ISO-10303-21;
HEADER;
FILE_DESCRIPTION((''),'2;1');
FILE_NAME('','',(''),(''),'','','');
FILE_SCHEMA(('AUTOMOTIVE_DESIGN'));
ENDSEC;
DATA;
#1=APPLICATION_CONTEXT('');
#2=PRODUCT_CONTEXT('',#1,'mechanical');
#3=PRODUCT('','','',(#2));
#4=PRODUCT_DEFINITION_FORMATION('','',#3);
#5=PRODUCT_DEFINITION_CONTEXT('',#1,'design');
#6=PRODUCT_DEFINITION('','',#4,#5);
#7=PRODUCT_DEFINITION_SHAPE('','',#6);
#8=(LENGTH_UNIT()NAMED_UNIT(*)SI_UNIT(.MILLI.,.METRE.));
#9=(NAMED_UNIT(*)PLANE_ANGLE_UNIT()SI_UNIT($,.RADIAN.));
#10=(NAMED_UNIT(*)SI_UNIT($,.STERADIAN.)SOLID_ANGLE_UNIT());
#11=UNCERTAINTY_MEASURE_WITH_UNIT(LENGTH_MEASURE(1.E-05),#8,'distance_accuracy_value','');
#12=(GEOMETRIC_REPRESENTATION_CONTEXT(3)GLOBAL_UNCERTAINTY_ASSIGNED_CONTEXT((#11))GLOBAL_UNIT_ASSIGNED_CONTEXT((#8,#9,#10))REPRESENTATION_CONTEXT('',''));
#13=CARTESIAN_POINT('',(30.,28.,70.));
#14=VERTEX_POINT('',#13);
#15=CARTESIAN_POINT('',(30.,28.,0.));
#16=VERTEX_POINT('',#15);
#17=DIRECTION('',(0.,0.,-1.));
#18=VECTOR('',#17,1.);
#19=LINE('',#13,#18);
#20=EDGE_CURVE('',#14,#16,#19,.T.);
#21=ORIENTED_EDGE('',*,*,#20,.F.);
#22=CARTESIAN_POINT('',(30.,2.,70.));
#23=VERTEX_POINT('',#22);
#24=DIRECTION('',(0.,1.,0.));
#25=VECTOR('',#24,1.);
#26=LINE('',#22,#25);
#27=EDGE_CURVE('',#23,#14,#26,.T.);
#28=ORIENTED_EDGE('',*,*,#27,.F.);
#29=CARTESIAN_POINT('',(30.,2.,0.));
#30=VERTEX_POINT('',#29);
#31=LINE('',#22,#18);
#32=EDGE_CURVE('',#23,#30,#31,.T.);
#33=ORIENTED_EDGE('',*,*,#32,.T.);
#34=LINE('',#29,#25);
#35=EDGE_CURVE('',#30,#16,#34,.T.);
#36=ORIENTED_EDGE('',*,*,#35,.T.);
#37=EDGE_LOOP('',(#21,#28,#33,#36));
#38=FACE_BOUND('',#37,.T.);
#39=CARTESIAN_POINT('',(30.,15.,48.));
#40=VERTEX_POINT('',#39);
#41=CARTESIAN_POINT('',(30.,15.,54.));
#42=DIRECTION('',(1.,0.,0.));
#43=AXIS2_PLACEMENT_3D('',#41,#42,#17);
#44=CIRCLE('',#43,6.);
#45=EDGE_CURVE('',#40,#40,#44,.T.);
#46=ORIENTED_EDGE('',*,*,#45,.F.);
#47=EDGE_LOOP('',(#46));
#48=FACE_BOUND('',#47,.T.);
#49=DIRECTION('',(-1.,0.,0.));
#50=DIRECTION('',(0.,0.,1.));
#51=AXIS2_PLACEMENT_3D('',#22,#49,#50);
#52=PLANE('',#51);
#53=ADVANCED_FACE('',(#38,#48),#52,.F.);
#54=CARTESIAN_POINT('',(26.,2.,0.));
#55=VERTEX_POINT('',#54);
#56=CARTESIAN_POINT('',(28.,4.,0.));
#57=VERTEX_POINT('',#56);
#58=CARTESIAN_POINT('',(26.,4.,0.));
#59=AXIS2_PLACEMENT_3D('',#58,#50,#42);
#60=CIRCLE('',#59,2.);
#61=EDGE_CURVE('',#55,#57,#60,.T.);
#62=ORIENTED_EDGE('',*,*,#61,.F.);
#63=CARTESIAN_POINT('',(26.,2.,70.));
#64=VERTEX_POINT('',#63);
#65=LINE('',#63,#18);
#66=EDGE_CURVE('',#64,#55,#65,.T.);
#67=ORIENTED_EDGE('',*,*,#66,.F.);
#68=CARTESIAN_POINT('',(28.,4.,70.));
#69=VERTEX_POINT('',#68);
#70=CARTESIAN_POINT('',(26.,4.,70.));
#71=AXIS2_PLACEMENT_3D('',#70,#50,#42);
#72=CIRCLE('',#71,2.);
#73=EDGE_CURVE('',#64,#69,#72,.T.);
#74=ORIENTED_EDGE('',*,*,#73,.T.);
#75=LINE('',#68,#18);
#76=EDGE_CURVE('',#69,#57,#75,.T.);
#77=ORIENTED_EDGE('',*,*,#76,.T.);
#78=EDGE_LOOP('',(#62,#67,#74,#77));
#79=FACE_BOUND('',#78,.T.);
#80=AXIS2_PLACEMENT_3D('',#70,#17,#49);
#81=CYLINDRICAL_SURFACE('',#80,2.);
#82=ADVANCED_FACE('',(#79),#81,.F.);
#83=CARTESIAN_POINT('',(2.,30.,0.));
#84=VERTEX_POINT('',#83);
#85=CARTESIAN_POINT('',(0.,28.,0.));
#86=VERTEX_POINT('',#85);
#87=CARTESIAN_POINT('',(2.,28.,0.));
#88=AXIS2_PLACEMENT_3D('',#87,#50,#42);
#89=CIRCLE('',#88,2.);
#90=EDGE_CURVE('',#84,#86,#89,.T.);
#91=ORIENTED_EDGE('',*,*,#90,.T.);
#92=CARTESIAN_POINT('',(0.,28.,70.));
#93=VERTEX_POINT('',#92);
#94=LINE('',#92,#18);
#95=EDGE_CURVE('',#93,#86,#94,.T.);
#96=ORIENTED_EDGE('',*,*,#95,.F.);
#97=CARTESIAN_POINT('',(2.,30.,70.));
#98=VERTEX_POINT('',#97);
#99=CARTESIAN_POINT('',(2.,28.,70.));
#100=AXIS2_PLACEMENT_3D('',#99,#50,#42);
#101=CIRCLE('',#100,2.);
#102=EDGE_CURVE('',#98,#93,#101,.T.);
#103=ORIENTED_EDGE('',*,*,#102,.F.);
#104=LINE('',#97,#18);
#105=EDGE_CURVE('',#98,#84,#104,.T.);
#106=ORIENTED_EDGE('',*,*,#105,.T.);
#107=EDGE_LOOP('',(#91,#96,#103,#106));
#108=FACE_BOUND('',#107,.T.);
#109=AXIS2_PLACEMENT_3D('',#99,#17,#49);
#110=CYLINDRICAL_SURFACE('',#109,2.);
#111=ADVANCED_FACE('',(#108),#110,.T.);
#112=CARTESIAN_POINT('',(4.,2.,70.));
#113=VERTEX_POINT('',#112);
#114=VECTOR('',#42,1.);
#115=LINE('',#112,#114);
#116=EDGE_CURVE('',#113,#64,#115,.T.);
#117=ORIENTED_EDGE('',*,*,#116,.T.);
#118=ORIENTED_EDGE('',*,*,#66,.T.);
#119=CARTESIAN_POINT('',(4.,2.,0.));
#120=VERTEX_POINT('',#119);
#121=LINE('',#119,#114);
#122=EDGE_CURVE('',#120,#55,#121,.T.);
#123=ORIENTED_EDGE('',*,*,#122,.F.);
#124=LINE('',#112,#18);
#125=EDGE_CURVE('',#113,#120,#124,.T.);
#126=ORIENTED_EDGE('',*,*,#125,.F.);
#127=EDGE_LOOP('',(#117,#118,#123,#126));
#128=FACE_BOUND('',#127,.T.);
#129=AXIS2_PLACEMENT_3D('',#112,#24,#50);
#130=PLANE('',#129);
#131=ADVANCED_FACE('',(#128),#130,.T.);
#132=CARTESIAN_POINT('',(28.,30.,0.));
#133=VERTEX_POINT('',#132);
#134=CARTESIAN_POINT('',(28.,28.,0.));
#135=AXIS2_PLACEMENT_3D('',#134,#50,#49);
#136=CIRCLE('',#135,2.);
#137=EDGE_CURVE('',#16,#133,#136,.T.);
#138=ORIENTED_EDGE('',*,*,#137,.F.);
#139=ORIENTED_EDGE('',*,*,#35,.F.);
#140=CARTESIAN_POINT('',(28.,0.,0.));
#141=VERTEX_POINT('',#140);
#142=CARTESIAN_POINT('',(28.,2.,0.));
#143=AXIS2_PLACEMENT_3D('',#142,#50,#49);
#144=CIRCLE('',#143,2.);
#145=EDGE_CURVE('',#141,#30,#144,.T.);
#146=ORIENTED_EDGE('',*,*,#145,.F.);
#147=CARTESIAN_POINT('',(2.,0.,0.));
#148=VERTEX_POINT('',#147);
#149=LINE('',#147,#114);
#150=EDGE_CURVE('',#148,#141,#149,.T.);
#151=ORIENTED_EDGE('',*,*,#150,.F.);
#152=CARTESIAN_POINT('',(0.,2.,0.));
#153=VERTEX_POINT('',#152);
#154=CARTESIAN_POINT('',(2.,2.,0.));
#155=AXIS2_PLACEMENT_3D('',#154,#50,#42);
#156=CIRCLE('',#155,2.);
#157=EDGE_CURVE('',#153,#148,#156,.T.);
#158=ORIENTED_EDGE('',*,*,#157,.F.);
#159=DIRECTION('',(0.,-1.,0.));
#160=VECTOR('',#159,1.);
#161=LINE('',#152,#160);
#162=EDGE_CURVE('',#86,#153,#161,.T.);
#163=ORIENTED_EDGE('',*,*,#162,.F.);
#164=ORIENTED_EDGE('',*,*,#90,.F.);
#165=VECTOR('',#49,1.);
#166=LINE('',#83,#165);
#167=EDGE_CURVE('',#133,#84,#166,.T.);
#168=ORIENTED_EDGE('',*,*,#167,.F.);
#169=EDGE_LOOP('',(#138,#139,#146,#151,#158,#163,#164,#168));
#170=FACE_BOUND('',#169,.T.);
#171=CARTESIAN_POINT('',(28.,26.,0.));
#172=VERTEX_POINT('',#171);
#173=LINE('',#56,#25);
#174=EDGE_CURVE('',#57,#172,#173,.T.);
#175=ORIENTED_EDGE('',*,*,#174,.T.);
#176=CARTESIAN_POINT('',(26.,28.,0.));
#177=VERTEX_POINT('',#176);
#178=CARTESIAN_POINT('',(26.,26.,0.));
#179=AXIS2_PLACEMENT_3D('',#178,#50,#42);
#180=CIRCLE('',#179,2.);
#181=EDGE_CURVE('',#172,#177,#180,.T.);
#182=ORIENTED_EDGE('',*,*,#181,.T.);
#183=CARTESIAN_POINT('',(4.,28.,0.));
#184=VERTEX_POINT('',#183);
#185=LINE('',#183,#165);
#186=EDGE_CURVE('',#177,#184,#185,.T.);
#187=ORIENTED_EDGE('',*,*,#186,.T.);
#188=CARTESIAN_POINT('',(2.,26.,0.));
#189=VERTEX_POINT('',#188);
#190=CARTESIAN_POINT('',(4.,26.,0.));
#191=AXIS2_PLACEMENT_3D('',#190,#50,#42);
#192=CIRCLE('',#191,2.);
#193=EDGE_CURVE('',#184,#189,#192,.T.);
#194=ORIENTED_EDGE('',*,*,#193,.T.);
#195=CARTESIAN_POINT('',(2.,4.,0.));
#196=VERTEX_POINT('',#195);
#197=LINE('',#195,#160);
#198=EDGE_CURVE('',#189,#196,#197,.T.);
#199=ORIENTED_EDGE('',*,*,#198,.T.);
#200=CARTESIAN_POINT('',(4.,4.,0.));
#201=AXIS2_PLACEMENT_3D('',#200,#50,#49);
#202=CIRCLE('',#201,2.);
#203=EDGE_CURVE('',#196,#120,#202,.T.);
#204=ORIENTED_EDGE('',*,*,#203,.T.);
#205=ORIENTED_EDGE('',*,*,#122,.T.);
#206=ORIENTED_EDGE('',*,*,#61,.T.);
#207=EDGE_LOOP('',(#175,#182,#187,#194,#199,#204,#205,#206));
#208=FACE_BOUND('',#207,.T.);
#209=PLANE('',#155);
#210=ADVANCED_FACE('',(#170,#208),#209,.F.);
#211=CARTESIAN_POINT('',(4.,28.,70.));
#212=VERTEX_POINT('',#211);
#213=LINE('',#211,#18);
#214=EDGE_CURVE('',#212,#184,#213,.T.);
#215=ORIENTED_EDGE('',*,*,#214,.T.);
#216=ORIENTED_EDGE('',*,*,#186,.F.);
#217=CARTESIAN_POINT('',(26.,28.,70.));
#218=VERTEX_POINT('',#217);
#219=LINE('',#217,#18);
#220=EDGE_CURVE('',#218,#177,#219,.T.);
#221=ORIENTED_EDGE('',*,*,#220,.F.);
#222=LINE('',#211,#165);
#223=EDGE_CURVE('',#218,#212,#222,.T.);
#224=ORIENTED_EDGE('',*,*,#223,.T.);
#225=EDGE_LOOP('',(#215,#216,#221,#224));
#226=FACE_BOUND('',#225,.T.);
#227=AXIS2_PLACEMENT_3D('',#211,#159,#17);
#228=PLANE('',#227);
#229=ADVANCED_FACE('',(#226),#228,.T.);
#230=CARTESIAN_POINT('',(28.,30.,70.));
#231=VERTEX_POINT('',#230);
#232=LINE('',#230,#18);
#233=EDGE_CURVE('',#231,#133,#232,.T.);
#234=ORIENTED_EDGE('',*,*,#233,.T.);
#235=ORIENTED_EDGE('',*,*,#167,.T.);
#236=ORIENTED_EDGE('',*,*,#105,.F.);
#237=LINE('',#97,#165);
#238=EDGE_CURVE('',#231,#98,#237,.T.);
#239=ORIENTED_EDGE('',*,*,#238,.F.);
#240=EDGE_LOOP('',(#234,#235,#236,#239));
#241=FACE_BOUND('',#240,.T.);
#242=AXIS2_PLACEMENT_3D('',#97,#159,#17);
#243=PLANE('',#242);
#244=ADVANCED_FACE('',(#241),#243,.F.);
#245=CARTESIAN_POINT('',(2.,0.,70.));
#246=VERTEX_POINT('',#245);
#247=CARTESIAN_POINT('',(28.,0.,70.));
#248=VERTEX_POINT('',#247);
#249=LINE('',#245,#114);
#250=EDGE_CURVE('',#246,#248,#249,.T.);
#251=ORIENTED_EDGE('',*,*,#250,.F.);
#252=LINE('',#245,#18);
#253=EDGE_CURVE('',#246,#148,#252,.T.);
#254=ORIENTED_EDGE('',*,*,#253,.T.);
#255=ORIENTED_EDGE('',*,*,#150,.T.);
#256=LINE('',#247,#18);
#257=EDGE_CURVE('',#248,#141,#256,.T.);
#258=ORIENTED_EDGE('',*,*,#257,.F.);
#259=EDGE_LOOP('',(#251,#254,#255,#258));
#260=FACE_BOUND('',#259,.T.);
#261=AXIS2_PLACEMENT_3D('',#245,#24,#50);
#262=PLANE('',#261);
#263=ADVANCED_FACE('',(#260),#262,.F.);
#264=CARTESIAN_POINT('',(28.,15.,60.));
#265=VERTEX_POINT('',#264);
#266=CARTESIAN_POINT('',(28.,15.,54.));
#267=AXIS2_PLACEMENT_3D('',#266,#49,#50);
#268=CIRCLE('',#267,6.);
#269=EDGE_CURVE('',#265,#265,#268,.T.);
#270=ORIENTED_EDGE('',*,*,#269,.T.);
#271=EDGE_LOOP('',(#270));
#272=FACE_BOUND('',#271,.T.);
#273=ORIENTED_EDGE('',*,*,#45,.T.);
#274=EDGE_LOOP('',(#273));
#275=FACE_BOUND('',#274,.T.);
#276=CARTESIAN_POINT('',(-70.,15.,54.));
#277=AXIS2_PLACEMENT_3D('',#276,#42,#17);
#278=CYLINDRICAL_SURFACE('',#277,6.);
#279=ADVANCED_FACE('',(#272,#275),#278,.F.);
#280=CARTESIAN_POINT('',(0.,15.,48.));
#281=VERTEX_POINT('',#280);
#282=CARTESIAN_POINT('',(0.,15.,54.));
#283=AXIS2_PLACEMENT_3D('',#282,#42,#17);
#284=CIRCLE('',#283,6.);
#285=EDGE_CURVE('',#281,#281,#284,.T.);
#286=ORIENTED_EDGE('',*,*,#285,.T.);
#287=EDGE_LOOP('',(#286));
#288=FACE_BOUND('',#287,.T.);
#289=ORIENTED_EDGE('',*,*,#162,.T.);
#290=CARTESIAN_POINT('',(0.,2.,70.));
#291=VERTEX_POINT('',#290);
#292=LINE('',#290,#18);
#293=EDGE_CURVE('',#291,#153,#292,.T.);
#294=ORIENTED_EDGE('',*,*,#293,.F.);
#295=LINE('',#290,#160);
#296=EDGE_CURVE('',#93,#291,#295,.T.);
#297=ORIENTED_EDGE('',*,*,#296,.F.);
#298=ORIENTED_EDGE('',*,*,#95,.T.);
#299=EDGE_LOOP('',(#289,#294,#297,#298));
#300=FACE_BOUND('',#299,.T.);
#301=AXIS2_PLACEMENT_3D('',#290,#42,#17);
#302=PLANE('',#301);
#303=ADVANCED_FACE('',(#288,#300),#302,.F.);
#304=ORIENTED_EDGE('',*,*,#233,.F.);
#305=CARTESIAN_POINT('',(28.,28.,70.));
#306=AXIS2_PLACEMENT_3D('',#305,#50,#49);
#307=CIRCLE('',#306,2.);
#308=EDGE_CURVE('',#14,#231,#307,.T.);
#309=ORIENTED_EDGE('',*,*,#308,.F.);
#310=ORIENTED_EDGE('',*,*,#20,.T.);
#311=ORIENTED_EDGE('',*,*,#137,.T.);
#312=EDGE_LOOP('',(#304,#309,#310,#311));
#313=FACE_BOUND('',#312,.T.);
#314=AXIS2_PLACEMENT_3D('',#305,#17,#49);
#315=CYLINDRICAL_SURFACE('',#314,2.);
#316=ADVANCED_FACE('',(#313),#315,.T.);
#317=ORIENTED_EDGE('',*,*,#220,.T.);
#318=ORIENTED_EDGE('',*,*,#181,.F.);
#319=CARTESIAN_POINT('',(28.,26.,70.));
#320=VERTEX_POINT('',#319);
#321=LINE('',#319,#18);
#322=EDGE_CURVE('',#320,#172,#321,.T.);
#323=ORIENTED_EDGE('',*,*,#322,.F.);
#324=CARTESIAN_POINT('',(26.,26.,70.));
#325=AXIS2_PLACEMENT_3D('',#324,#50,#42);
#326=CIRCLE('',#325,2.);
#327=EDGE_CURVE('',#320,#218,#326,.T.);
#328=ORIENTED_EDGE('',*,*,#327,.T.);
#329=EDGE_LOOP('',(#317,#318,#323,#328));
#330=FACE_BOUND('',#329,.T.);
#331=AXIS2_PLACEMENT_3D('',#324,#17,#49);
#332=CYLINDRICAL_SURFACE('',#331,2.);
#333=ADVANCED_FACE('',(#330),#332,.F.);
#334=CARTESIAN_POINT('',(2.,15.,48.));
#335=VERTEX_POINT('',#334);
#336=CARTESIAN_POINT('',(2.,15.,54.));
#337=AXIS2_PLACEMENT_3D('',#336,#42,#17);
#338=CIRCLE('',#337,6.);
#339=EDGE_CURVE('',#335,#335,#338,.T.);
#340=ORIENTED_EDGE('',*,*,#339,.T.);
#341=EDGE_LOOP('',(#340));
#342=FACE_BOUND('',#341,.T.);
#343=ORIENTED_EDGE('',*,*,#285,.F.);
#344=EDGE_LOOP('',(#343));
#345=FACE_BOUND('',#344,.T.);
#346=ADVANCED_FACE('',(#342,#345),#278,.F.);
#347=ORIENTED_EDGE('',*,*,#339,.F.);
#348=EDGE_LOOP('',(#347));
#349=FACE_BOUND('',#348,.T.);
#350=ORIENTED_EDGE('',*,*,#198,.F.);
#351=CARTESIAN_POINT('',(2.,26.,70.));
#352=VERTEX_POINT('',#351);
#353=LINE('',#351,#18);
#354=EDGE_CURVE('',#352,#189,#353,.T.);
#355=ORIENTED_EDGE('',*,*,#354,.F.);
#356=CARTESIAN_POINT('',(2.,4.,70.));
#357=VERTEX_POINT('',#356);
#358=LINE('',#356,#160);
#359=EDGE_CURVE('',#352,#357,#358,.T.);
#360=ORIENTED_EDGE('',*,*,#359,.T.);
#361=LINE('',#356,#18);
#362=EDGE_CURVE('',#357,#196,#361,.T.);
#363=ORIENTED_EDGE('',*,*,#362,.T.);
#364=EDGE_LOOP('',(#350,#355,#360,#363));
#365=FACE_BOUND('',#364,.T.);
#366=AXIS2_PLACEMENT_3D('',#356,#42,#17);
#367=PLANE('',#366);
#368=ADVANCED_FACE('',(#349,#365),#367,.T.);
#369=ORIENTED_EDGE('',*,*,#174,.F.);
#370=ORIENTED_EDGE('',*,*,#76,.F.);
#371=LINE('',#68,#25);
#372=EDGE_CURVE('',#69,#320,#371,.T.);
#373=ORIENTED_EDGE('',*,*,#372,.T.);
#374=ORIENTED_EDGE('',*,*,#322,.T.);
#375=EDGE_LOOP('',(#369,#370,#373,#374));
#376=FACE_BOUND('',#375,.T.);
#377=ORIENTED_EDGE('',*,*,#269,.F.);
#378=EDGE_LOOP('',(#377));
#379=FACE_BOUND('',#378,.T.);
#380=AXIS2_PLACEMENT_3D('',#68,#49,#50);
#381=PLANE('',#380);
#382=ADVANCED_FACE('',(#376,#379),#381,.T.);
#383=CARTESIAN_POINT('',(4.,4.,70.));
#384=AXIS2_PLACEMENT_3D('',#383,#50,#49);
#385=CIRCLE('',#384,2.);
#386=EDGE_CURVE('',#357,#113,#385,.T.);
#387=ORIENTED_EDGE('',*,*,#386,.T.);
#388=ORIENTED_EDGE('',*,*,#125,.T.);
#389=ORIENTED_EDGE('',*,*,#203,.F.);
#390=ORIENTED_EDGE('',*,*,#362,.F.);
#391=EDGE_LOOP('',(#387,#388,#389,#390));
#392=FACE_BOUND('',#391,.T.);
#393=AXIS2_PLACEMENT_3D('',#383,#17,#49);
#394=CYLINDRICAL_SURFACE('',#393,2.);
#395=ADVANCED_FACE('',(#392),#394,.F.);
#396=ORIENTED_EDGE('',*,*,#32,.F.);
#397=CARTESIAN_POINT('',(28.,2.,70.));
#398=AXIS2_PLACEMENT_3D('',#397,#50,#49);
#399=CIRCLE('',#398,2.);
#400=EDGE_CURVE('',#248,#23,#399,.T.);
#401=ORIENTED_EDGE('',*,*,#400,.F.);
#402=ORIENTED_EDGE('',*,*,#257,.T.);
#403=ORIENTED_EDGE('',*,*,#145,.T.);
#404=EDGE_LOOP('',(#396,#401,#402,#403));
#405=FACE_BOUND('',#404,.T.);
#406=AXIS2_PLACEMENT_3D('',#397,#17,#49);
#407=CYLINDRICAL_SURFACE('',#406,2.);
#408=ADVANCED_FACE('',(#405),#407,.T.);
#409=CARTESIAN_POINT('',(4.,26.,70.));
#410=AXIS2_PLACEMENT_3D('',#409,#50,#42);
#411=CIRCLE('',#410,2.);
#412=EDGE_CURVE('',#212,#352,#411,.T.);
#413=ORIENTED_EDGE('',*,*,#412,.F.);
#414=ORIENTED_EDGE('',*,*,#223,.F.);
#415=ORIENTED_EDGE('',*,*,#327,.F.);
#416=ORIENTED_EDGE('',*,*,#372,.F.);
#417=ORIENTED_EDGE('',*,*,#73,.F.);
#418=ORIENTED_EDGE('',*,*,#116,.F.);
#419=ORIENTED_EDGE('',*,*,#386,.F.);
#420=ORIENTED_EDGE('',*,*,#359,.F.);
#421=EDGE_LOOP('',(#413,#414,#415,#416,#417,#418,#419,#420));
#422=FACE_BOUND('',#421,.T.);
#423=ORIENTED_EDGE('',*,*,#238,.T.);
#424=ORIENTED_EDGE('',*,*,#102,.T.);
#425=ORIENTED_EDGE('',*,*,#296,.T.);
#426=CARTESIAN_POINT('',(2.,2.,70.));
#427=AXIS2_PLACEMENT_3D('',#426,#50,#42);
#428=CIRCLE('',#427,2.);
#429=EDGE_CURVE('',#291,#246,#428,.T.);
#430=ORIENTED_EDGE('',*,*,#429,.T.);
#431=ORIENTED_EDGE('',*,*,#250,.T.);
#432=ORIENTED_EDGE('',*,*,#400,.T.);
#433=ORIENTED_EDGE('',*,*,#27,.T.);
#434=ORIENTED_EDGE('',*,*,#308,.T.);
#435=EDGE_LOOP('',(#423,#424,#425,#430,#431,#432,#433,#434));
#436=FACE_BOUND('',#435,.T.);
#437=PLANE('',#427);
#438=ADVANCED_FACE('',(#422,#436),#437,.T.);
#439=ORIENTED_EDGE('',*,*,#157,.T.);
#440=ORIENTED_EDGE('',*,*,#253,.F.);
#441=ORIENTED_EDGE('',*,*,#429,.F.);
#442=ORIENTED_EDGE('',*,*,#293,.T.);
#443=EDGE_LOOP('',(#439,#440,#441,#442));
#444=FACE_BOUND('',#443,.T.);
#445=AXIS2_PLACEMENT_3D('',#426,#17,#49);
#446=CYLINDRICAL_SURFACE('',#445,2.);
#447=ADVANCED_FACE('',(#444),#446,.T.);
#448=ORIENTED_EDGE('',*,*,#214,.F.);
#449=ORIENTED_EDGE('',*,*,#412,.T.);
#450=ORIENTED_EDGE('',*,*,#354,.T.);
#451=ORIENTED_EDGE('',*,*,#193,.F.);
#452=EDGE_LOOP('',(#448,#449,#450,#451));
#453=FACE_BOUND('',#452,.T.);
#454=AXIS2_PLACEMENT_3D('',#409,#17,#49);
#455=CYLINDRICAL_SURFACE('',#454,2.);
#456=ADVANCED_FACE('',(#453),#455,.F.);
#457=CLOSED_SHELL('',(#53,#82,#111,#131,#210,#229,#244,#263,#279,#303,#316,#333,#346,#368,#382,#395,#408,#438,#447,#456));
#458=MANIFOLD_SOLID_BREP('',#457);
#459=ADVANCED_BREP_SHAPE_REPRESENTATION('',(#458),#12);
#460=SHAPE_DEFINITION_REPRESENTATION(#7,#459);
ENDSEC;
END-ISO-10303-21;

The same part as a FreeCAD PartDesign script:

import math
import FreeCAD as App
import Part
import Sketcher
from FreeCAD import Vector
Q = App.Units.Quantity

doc = App.newDocument("Part")
body = doc.addObject("PartDesign::Body", "Body")

# Sketch on XY plane
sketch1 = body.newObject("Sketcher::SketchObject", "Sketch")
sketch1.AttachmentSupport = (doc.getObject("XY_Plane"), [""])
sketch1.MapMode = "FlatFace"
sketch1.addGeometry([
    Part.LineSegment(Vector(2, 0, 0), Vector(28, 0, 0)),  # 0
    Part.ArcOfCircle(Part.Circle(Vector(28, 2, 0), Vector(0, 0, 1), 2), math.radians(-90), math.radians(0)),  # 1
    Part.LineSegment(Vector(30, 2, 0), Vector(30, 28, 0)),  # 2
    Part.ArcOfCircle(Part.Circle(Vector(28, 28, 0), Vector(0, 0, 1), 2), math.radians(0), math.radians(90)),  # 3
    Part.LineSegment(Vector(28, 30, 0), Vector(2, 30, 0)),  # 4
    Part.ArcOfCircle(Part.Circle(Vector(2, 28, 0), Vector(0, 0, 1), 2), math.radians(90), math.radians(180)),  # 5
    Part.LineSegment(Vector(0, 28, 0), Vector(0, 2, 0)),  # 6
    Part.ArcOfCircle(Part.Circle(Vector(2, 2, 0), Vector(0, 0, 1), 2), math.radians(-180), math.radians(-90)),  # 7
    Part.ArcOfCircle(Part.Circle(Vector(4, 26, 0), Vector(0, 0, 1), 2), math.radians(90), math.radians(180)),  # 8
    Part.LineSegment(Vector(4, 28, 0), Vector(26, 28, 0)),  # 9
    Part.ArcOfCircle(Part.Circle(Vector(26, 26, 0), Vector(0, 0, 1), 2), math.radians(0), math.radians(90)),  # 10
    Part.LineSegment(Vector(28, 26, 0), Vector(28, 4, 0)),  # 11
    Part.ArcOfCircle(Part.Circle(Vector(26, 4, 0), Vector(0, 0, 1), 2), math.radians(-90), math.radians(0)),  # 12
    Part.LineSegment(Vector(26, 2, 0), Vector(4, 2, 0)),  # 13
    Part.ArcOfCircle(Part.Circle(Vector(4, 4, 0), Vector(0, 0, 1), 2), math.radians(-180), math.radians(-90)),  # 14
    Part.LineSegment(Vector(2, 4, 0), Vector(2, 26, 0)),  # 15
], False)
sketch1.addConstraint([
    Sketcher.Constraint("Tangent", 0, 2, 1, 1),
    Sketcher.Constraint("Tangent", 1, 2, 2, 1),
    Sketcher.Constraint("Tangent", 2, 2, 3, 1),
    Sketcher.Constraint("Tangent", 3, 2, 4, 1),
    Sketcher.Constraint("Tangent", 4, 2, 5, 1),
    Sketcher.Constraint("Tangent", 5, 2, 6, 1),
    Sketcher.Constraint("Tangent", 6, 2, 7, 1),
    Sketcher.Constraint("Tangent", 7, 2, 0, 1),
    Sketcher.Constraint("Tangent", 8, 1, 9, 1),
    Sketcher.Constraint("Tangent", 9, 2, 10, 2),
    Sketcher.Constraint("Tangent", 10, 1, 11, 1),
    Sketcher.Constraint("Tangent", 11, 2, 12, 2),
    Sketcher.Constraint("Tangent", 12, 1, 13, 1),
    Sketcher.Constraint("Tangent", 13, 2, 14, 2),
    Sketcher.Constraint("Tangent", 14, 1, 15, 1),
    Sketcher.Constraint("Tangent", 15, 2, 8, 2),
    Sketcher.Constraint("Horizontal", 0),
    Sketcher.Constraint("Vertical", 2),
    Sketcher.Constraint("Horizontal", 4),
    Sketcher.Constraint("Vertical", 6),
    Sketcher.Constraint("Horizontal", 9),
    Sketcher.Constraint("Vertical", 11),
    Sketcher.Constraint("Horizontal", 13),
    Sketcher.Constraint("Vertical", 15),
    Sketcher.Constraint("Equal", 1, 3),
    Sketcher.Constraint("Equal", 3, 5),
    Sketcher.Constraint("Equal", 5, 7),
    Sketcher.Constraint("Equal", 7, 8),
    Sketcher.Constraint("Equal", 8, 10),
    Sketcher.Constraint("Equal", 10, 12),
    Sketcher.Constraint("Equal", 12, 14),
    Sketcher.Constraint("PointOnObject", 0, 2, -1),
    Sketcher.Constraint("PointOnObject", 5, 2, -2),
    Sketcher.Constraint("Horizontal", 5, 2, 8, 1),
    Sketcher.Constraint("Horizontal", 6, 2, 12, 1),
    Sketcher.Constraint("Vertical", 3, 2, 10, 1),
    Sketcher.Constraint("Vertical", 7, 2, 14, 1),
    Sketcher.Constraint("Equal", 4, 2),
    Sketcher.Constraint("Radius", 1, Q("2 mm")),
    Sketcher.Constraint("DistanceX", 0, 1, 0, 2, Q("26 mm")),
])
pad1 = body.newObject("PartDesign::Pad", "Pad")
pad1.Profile = sketch1
pad1.Length = 70

# Sketch on YZ plane
sketch2 = body.newObject("Sketcher::SketchObject", "Sketch001")
sketch2.AttachmentSupport = (doc.getObject("YZ_Plane"), [""])
sketch2.MapMode = "FlatFace"
sketch2.AttachmentOffset = App.Placement(Vector(0, 0, 30), App.Rotation())
sketch2.addGeometry(Part.Circle(Vector(15, 54, 0), Vector(0, 0, 1), 6), False)
sketch2.addConstraint([
    Sketcher.Constraint("Diameter", 0, Q("12 mm")),
    Sketcher.Constraint("DistanceX", -1, 1, 0, 3, Q("15 mm")),
    Sketcher.Constraint("DistanceY", -1, 1, 0, 3, Q("54 mm")),
])
pocket1 = body.newObject("PartDesign::Pocket", "Pocket")
pocket1.Profile = sketch2
pocket1.Length = 100

doc.recompute()
